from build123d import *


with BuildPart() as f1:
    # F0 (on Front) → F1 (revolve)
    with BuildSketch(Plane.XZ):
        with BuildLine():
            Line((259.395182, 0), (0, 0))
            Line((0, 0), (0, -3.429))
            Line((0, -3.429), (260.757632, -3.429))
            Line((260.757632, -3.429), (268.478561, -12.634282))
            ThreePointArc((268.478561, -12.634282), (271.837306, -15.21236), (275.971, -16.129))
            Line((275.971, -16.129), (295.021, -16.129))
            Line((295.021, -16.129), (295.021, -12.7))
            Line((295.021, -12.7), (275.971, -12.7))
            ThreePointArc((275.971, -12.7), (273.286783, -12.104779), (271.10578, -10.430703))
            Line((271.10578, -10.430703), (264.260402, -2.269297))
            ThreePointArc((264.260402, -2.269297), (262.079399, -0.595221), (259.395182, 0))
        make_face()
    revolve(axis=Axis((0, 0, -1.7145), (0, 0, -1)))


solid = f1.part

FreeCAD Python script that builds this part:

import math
import FreeCAD as App
import Part
import Sketcher
Q = App.Units.Quantity

doc = App.newDocument("Part")
body = doc.addObject("PartDesign::Body", "Body")

# Sketch on XZ plane
sketch1 = doc.addObject("Sketcher::SketchObject", "Sketch")
body.addObject(sketch1)
sketch1.AttachmentSupport = (doc.XZ_Plane, [""])
sketch1.MapMode = "FlatFace"
sketch1.addGeometry(Part.LineSegment(App.Vector(259.4, 0, 0), App.Vector(0, 0, 0)), False)
sketch1.addGeometry(Part.LineSegment(App.Vector(0, 0, 0), App.Vector(0, -3.4, 0)), False)
sketch1.addGeometry(Part.LineSegment(App.Vector(0, -3.4, 0), App.Vector(260.8, -3.4, 0)), False)
sketch1.addGeometry(Part.LineSegment(App.Vector(260.8, -3.4, 0), App.Vector(268.5, -12.6, 0)), False)
sketch1.addGeometry(Part.ArcOfCircle(Part.Circle(App.Vector(276, -6.4, 0), App.Vector(0, 0, 1), 9.8), math.radians(-140), math.radians(-90)), False)
sketch1.addGeometry(Part.LineSegment(App.Vector(276, -16.1, 0), App.Vector(295, -16.1, 0)), False)
sketch1.addGeometry(Part.LineSegment(App.Vector(295, -16.1, 0), App.Vector(295, -12.7, 0)), False)
sketch1.addGeometry(Part.LineSegment(App.Vector(295, -12.7, 0), App.Vector(276, -12.7, 0)), False)
sketch1.addGeometry(Part.ArcOfCircle(Part.Circle(App.Vector(276, -6.4, 0), App.Vector(0, 0, 1), 6.3), math.radians(-140), math.radians(-90)), False)
sketch1.addGeometry(Part.LineSegment(App.Vector(271.1, -10.4, 0), App.Vector(264.3, -2.3, 0)), False)
sketch1.addGeometry(Part.ArcOfCircle(Part.Circle(App.Vector(259.4, -6.3, 0), App.Vector(0, 0, 1), 6.3), math.radians(40), math.radians(90)), False)
sketch1.addConstraint(Sketcher.Constraint("Coincident", 0, 2, 1, 1))
sketch1.addConstraint(Sketcher.Constraint("Coincident", 1, 2, 2, 1))
sketch1.addConstraint(Sketcher.Constraint("Coincident", 2, 2, 3, 1))
sketch1.addConstraint(Sketcher.Constraint("Tangent", 3, 2, 4, 1))
sketch1.addConstraint(Sketcher.Constraint("Tangent", 4, 2, 5, 1))
sketch1.addConstraint(Sketcher.Constraint("Coincident", 5, 2, 6, 1))
sketch1.addConstraint(Sketcher.Constraint("Coincident", 6, 2, 7, 1))
sketch1.addConstraint(Sketcher.Constraint("Tangent", 7, 2, 8, 2))
sketch1.addConstraint(Sketcher.Constraint("Tangent", 8, 1, 9, 1))
sketch1.addConstraint(Sketcher.Constraint("Tangent", 9, 2, 10, 1))
sketch1.addConstraint(Sketcher.Constraint("Tangent", 10, 2, 0, 1))
sketch1.addConstraint(Sketcher.Constraint("Horizontal", 0))
sketch1.addConstraint(Sketcher.Constraint("Vertical", 1))
sketch1.addConstraint(Sketcher.Constraint("Horizontal", 2))
sketch1.addConstraint(Sketcher.Constraint("Horizontal", 5))
sketch1.addConstraint(Sketcher.Constraint("Vertical", 6))
sketch1.addConstraint(Sketcher.Constraint("Horizontal", 7))
sketch1.addConstraint(Sketcher.Constraint("Coincident", 0, 2, -1, 1))
sketch1.addConstraint(Sketcher.Constraint("Coincident", 8, 3, 4, 3))
sketch1.addConstraint(Sketcher.Constraint("Equal", 8, 10))
sketch1.addConstraint(Sketcher.Constraint("Parallel", 3, 9))
sketch1.addConstraint(Sketcher.Constraint("Horizontal", 8, 3, 10, 3))
sketch1.addConstraint(Sketcher.Constraint("Equal", 1, 6))
sketch1.addConstraint(Sketcher.Constraint("Radius", 8, Q("0.25 in")))
sketch1.addConstraint(Sketcher.Constraint("Radius", 4, Q("0.3849998 in")))
sketch1.addConstraint(Sketcher.Constraint("DistanceX", 5, 1, 5, 2, Q("0.75 in")))
sketch1.addConstraint(Sketcher.Constraint("DistanceX", -1, 1, 4, 3, Q("10.8649999 in")))
sketch1.addConstraint(Sketcher.Constraint("DistanceX", 0, 2, 0, 1, 259.395182))
revolution = doc.addObject("PartDesign::Revolution", "Revolution")
body.addObject(revolution)
revolution.Profile = sketch1
revolution.ReferenceAxis = (sketch1, ["V_Axis"])
revolution.Angle = 360

doc.recompute()
